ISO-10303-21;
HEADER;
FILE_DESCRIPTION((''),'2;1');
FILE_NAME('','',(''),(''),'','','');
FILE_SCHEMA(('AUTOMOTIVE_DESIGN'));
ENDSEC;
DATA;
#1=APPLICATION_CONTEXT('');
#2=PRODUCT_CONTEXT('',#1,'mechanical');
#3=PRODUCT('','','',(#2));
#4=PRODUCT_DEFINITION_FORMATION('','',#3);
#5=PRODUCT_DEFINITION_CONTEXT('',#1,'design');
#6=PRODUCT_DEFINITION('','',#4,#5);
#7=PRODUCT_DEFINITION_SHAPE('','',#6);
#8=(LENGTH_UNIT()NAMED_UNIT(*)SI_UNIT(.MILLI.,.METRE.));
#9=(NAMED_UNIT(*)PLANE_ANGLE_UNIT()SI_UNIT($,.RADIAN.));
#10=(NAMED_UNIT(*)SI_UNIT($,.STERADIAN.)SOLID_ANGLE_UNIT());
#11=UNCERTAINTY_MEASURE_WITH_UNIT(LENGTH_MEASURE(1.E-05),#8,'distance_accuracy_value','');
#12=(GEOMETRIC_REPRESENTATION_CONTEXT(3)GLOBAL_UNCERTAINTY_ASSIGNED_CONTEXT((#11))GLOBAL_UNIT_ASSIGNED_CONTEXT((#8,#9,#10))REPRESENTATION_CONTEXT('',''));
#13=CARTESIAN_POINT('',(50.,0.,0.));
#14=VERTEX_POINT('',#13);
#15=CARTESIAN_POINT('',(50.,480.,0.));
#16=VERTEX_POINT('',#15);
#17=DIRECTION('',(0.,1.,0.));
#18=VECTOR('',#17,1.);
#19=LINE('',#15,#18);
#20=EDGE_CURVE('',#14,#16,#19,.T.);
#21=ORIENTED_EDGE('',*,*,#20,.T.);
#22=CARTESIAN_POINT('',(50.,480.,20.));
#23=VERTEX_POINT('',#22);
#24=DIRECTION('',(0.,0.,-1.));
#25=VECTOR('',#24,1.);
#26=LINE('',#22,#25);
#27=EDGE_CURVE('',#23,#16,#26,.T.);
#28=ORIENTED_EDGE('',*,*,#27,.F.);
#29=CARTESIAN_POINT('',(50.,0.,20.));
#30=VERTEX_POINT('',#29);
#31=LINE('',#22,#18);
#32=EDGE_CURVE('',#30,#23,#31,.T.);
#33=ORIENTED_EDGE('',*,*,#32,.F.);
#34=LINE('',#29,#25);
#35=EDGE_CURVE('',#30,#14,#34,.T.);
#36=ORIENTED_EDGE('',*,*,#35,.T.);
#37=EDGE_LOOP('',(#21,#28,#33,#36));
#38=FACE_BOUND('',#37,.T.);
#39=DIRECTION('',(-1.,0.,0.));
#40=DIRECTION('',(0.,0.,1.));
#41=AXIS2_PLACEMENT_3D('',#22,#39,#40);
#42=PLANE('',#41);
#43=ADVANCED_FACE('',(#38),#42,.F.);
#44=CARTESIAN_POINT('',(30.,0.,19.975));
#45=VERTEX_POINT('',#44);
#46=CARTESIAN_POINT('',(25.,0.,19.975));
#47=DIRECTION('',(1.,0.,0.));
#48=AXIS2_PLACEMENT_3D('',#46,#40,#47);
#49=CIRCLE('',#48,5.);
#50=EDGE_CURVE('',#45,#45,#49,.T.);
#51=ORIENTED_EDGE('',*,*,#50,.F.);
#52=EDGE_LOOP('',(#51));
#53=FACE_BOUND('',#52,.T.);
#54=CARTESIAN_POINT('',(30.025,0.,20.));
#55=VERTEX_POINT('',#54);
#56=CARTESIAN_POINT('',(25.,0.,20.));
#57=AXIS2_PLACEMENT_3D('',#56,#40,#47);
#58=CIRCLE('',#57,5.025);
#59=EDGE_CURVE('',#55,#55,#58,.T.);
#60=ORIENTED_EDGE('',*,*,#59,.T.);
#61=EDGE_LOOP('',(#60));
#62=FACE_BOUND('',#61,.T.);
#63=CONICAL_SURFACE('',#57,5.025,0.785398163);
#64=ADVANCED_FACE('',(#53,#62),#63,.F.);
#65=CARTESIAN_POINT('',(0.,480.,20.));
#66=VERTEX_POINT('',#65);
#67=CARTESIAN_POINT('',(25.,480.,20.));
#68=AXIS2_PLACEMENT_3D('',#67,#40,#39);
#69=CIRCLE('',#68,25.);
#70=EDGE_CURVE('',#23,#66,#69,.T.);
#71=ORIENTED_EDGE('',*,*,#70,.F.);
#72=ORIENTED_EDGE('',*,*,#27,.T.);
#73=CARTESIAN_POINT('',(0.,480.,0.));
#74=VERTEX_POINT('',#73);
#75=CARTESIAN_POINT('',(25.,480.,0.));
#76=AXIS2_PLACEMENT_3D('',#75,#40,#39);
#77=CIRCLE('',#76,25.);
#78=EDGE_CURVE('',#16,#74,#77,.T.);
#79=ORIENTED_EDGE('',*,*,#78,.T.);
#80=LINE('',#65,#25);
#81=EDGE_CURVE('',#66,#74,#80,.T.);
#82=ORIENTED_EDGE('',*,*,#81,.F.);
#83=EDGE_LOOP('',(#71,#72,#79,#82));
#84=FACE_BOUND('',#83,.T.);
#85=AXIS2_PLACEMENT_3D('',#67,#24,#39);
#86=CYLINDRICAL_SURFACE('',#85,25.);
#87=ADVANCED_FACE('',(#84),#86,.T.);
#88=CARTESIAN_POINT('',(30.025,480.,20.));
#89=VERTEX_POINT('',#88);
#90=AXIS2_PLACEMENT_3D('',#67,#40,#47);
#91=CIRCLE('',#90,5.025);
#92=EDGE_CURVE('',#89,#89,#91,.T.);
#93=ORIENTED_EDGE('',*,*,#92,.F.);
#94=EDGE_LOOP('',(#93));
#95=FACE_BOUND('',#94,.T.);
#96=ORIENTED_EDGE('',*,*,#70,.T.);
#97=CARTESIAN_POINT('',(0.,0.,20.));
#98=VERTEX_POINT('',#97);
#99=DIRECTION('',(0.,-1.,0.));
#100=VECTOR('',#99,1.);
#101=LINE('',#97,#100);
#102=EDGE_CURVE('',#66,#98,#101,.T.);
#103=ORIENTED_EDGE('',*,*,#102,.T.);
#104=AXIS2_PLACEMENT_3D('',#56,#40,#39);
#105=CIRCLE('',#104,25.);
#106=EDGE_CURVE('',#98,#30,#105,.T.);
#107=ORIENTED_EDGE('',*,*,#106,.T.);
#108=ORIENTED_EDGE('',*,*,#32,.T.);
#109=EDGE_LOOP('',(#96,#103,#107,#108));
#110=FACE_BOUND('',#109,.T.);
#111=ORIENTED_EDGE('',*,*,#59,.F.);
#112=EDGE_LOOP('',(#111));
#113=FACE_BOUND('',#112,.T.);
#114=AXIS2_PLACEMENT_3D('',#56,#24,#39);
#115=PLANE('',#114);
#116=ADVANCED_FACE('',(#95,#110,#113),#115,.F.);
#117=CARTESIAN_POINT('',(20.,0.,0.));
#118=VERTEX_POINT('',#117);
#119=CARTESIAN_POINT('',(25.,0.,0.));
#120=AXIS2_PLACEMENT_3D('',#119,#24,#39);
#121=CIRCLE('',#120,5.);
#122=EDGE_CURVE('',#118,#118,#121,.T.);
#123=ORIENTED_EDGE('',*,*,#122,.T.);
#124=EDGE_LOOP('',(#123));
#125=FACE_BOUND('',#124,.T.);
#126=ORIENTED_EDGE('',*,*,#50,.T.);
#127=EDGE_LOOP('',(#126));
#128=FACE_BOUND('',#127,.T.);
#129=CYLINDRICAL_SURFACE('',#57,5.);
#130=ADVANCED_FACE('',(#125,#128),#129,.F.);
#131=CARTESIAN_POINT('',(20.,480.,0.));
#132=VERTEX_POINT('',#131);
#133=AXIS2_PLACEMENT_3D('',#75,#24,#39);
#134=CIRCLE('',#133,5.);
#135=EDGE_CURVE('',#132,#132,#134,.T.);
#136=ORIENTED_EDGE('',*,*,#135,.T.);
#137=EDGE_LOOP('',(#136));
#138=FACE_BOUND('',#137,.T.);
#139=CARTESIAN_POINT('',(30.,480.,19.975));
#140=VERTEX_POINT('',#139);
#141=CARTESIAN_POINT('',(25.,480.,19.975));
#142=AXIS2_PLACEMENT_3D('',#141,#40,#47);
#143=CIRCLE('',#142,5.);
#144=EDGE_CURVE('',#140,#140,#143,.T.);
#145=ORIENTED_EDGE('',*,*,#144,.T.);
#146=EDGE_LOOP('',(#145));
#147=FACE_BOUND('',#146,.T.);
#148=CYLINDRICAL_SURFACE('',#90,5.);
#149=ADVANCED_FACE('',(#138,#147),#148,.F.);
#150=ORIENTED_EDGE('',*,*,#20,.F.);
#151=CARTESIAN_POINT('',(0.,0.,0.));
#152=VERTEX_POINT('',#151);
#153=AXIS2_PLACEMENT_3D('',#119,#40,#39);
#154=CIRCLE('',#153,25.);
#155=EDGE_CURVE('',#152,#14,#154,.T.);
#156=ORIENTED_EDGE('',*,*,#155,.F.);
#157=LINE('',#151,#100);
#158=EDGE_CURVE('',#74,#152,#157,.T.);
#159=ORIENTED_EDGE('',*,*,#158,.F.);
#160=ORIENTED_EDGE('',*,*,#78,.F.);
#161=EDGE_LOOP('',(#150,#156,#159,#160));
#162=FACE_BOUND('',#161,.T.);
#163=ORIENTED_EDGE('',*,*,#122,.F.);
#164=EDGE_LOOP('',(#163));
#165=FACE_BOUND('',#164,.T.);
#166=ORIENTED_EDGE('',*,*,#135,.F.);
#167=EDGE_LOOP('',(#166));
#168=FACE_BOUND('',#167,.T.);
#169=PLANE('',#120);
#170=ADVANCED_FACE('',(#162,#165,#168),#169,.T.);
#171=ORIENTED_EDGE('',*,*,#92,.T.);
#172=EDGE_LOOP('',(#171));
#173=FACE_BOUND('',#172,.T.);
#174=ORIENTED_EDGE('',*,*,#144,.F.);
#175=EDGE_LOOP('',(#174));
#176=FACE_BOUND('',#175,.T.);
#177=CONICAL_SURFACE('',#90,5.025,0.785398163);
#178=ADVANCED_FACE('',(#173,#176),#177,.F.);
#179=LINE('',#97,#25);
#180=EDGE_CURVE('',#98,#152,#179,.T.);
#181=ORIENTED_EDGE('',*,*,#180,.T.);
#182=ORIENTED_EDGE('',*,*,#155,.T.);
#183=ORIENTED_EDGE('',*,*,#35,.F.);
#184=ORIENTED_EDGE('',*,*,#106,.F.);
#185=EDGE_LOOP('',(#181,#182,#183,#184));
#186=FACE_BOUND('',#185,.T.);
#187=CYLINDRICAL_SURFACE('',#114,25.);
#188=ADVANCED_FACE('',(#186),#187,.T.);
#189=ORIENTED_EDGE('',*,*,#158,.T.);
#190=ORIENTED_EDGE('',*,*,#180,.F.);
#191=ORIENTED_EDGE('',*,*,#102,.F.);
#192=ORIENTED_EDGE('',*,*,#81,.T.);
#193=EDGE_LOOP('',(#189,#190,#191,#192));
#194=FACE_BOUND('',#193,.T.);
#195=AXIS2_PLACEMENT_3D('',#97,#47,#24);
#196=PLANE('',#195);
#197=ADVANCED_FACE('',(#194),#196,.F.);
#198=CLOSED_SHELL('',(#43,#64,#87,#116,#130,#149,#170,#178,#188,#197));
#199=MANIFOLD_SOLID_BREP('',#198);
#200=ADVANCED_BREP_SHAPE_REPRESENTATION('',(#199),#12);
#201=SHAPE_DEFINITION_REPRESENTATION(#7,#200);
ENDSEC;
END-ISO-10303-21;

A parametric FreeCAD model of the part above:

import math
import FreeCAD as App
import Part
import Sketcher
Q = App.Units.Quantity

doc = App.newDocument("Part")
body = doc.addObject("PartDesign::Body", "Body")

# Sketch on XY plane
sketch1 = body.newObject("Sketcher::SketchObject", "Sketch")
sketch1.AttachmentSupport = (doc.getObject("XY_Plane"), [""])
sketch1.MapMode = "FlatFace"
sketch1.addGeometry(Part.LineSegment(App.Vector(0, 480, 0), App.Vector(0, 0, 0)), False)
sketch1.addGeometry(Part.ArcOfCircle(Part.Circle(App.Vector(25, 0, 0), App.Vector(0, 0, 1), 25), math.radians(180), math.radians(360)), False)
sketch1.addGeometry(Part.LineSegment(App.Vector(50, 0, 0), App.Vector(50, 480, 0)), False)
sketch1.addGeometry(Part.ArcOfCircle(Part.Circle(App.Vector(25, 480, 0), App.Vector(0, 0, 1), 25), math.radians(0), math.radians(180)), False)
sketch1.addConstraint(Sketcher.Constraint("Tangent", 0, 2, 1, 1))
sketch1.addConstraint(Sketcher.Constraint("Tangent", 1, 2, 2, 1))
sketch1.addConstraint(Sketcher.Constraint("Tangent", 2, 2, 3, 1))
sketch1.addConstraint(Sketcher.Constraint("Tangent", 3, 2, 0, 1))
sketch1.addConstraint(Sketcher.Constraint("Vertical", 0))
sketch1.addConstraint(Sketcher.Constraint("Vertical", 2))
sketch1.addConstraint(Sketcher.Constraint("Coincident", 0, 2, -1, 1))
sketch1.addConstraint(Sketcher.Constraint("Radius", 1, Q("25 mm")))
sketch1.addConstraint(Sketcher.Constraint("DistanceY", 0, 2, 0, 1, Q("480 mm")))
pad1 = body.newObject("PartDesign::Pad", "Pad")
pad1.Profile = sketch1
pad1.Length = 20

# Sketch on XY plane
sketch2 = body.newObject("Sketcher::SketchObject", "Sketch001")
sketch2.AttachmentSupport = (doc.getObject("XY_Plane"), [""])
sketch2.MapMode = "FlatFace"
sketch2.AttachmentOffset = App.Placement(App.Vector(0, 0, 20), App.Rotation())
sketch2.addGeometry(Part.Circle(App.Vector(25, 480, 0), App.Vector(0, 0, 1), 5), False)
sketch2.addGeometry(Part.Circle(App.Vector(25, 0, 0), App.Vector(0, 0, 1), 5), False)
sketch2.addConstraint(Sketcher.Constraint("Equal", 0, 1))
sketch2.addConstraint(Sketcher.Constraint("PointOnObject", 1, 3, -1))
sketch2.addConstraint(Sketcher.Constraint("Vertical", 0, 3, 1, 3))
sketch2.addConstraint(Sketcher.Constraint("Diameter", 0, Q("10 mm")))
sketch2.addConstraint(Sketcher.Constraint("DistanceX", -1, 1, 0, 3, Q("25 mm")))
sketch2.addConstraint(Sketcher.Constraint("DistanceY", -1, 1, 0, 3, Q("480 mm")))
doc.recompute()
hole = body.newObject("PartDesign::Hole", "Hole")
hole.Profile = sketch2
hole.ThreadType = "None"
hole.Diameter = 10
hole.DepthType = "Dimension"
hole.Depth = 20
hole.DrillPoint = "Flat"
hole.HoleCutType = "Countersink"
hole.HoleCutDiameter = 10.05
hole.HoleCutCountersinkAngle = 90

doc.recompute()
